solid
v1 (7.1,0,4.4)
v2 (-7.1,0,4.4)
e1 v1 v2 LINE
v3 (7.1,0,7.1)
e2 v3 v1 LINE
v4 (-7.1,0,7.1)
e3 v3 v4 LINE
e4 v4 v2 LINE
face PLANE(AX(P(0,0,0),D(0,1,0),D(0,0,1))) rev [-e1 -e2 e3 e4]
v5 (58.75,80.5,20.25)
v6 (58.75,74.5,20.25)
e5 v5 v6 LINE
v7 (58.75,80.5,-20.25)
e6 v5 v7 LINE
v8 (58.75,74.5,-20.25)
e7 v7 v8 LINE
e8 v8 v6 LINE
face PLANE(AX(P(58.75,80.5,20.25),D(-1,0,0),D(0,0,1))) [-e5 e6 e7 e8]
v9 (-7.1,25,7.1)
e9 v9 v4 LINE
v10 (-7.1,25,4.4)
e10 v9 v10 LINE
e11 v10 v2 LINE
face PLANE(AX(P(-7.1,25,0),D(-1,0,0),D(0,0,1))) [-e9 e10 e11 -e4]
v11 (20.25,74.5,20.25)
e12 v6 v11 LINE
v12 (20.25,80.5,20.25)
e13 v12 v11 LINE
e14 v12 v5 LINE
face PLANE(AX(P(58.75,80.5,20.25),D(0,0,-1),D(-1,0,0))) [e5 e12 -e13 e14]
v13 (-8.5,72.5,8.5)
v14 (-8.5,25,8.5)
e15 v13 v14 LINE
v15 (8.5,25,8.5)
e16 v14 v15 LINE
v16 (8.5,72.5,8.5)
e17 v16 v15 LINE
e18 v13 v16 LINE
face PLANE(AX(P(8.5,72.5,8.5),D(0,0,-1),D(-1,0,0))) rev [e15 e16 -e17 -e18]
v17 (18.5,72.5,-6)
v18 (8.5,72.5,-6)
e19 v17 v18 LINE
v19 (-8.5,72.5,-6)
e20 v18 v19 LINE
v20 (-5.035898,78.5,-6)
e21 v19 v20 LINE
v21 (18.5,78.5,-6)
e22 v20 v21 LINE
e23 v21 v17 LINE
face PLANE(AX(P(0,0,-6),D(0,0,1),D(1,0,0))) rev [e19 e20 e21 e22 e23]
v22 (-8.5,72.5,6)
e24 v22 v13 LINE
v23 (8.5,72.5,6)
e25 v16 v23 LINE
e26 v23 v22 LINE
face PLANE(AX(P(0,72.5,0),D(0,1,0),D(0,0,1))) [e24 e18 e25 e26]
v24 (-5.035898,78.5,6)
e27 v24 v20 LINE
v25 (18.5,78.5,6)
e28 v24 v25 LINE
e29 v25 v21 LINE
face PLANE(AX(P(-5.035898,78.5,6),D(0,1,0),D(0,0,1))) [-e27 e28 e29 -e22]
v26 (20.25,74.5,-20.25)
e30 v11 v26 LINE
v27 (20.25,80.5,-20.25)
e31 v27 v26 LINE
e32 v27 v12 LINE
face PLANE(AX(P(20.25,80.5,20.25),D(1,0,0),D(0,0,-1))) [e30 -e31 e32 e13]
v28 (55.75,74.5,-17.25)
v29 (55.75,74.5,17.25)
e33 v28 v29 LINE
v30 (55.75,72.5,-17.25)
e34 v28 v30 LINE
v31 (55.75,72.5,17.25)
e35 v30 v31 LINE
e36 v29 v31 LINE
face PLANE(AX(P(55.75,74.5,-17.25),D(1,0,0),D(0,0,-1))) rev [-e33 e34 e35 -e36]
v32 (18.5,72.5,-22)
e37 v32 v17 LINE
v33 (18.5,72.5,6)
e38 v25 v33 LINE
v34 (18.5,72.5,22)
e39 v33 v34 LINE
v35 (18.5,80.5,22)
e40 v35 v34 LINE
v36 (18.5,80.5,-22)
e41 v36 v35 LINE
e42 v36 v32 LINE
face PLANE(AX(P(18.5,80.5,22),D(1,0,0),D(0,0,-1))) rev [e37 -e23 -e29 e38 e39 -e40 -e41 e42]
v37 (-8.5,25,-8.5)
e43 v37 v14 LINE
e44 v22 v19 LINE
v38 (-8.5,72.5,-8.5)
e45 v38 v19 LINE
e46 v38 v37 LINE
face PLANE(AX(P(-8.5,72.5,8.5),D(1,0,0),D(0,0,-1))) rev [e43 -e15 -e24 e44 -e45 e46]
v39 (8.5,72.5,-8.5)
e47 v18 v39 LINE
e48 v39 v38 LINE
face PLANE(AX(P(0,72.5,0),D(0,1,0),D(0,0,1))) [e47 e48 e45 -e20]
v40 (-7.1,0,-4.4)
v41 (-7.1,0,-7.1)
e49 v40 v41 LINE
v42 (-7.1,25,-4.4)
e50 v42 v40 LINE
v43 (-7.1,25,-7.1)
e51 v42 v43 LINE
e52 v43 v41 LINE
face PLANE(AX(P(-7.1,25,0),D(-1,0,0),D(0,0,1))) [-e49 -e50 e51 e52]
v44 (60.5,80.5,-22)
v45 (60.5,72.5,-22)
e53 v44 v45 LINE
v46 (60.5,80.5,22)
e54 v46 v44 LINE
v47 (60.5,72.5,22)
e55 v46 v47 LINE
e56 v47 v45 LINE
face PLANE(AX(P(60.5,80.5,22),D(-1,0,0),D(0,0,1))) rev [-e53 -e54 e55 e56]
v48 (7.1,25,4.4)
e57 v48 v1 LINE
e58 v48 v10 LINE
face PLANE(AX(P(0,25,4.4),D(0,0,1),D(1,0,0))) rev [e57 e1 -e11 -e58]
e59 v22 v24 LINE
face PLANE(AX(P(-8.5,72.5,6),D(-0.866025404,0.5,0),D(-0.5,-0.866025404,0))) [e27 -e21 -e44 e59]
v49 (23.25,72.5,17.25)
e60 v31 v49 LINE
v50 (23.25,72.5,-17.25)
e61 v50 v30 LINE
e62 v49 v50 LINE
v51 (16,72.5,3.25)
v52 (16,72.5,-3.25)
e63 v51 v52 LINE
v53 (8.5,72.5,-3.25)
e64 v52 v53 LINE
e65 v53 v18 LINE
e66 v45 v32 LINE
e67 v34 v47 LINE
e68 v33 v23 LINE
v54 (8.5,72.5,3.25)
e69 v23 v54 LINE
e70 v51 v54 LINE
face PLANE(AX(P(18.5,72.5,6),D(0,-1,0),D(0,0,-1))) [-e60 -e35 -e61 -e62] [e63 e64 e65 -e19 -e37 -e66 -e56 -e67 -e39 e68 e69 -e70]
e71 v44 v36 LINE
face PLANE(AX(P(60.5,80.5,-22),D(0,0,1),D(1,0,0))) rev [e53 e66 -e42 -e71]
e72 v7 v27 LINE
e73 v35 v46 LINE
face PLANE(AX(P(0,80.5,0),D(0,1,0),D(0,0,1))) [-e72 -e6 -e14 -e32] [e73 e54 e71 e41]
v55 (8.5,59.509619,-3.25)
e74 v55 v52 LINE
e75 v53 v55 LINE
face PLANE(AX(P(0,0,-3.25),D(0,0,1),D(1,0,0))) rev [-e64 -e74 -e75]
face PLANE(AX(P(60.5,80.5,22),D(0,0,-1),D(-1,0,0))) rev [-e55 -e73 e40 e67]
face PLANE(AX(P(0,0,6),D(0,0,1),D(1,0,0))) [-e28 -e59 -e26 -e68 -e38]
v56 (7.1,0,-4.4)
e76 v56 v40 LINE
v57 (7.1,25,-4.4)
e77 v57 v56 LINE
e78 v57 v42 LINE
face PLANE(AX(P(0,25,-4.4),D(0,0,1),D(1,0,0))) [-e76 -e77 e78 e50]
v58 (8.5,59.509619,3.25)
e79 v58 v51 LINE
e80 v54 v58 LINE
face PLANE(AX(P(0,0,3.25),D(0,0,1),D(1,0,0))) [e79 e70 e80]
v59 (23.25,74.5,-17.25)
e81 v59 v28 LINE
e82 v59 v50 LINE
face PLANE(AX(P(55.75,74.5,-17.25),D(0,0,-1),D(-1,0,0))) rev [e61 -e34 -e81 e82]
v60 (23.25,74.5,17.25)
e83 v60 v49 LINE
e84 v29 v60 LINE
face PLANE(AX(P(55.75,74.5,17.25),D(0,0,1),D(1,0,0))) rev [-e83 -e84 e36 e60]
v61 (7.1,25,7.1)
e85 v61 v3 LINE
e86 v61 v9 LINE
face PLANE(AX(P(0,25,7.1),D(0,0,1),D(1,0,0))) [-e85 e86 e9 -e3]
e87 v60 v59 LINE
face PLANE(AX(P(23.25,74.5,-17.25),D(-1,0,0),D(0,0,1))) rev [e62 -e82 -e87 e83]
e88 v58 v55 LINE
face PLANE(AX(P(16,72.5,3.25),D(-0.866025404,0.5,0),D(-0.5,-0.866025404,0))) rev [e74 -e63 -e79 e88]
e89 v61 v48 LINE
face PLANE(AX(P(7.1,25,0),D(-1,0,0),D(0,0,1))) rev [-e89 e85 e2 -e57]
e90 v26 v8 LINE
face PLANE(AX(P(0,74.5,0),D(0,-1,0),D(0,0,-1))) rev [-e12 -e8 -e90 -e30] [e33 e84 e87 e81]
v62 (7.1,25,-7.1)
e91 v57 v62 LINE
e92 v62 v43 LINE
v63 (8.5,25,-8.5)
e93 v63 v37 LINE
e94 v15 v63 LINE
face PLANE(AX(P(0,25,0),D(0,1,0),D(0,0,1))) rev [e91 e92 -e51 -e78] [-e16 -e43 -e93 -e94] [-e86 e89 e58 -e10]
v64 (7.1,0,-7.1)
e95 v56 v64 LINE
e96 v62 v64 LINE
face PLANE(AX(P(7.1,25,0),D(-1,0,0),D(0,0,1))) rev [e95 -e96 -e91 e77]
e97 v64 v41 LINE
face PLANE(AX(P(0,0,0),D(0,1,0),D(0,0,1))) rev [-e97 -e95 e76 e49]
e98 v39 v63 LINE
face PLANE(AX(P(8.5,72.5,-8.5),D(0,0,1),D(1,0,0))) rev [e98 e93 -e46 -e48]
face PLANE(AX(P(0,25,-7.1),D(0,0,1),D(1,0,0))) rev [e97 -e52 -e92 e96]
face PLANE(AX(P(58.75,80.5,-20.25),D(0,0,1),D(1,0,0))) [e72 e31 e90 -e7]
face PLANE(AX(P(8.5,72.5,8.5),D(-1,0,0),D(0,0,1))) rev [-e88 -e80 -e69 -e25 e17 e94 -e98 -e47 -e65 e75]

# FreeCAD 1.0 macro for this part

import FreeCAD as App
import Part
import Sketcher
from FreeCAD import Vector
Q = App.Units.Quantity


def add_polygon(sketch, points):
    """Adds a closed chain of lines whose ends are joined by coincident constraints."""
    first, n = sketch.GeometryCount, len(points)
    for a, b in zip(points, points[1:] + points[:1]):
        sketch.addGeometry(Part.LineSegment(App.Vector(*a, 0), App.Vector(*b, 0)), False)
    for i in range(n):
        sketch.addConstraint(Sketcher.Constraint("Coincident", first + i, 2, first + (i + 1) % n, 1))

doc = App.newDocument("Part")
body = doc.addObject("PartDesign::Body", "Body")

sketch1 = doc.addObject("Sketcher::SketchObject", "Sketch")
body.addObject(sketch1)
sketch1.AttachmentSupport = (doc.XZ_Plane, [""])
sketch1.MapMode = "FlatFace"
add_polygon(sketch1, [(-7.1, 4.4), (-7.1, 7.1), (7.1, 7.1), (7.1, 4.4)])
sketch1.addConstraint(Sketcher.Constraint("Vertical", 0))
sketch1.addConstraint(Sketcher.Constraint("Horizontal", 1))
sketch1.addConstraint(Sketcher.Constraint("Vertical", 2))
sketch1.addConstraint(Sketcher.Constraint("Horizontal", 3))
sketch1.addConstraint(Sketcher.Constraint("DistanceX", 1, 1, 1, 2, Q("14.2 mm")))
sketch1.addConstraint(Sketcher.Constraint("DistanceY", 0, 1, 0, 2, Q("2.7 mm")))
sketch1.addConstraint(Sketcher.Constraint("DistanceX", 0, 2, -1, 1, Q("7.1 mm")))
sketch1.addConstraint(Sketcher.Constraint("DistanceY", -1, 1, 0, 2, Q("7.1 mm")))
pad1 = doc.addObject("PartDesign::Pad", "Pad")
body.addObject(pad1)
pad1.Profile = sketch1
pad1.Length = 25
pad1.Reversed = True
body2 = doc.addObject("PartDesign::Body", "Body001")

sketch2 = doc.addObject("Sketcher::SketchObject", "Sketch001")
body2.addObject(sketch2)
sketch2.AttachmentSupport = (doc.getObject("XZ_Plane001"), [""])
sketch2.MapMode = "FlatFace"
add_polygon(sketch2, [(-7.1, -7.1), (-7.1, -4.4), (7.1, -4.4), (7.1, -7.1)])
sketch2.addConstraint(Sketcher.Constraint("Vertical", 0))
sketch2.addConstraint(Sketcher.Constraint("Horizontal", 1))
sketch2.addConstraint(Sketcher.Constraint("Vertical", 2))
sketch2.addConstraint(Sketcher.Constraint("Horizontal", 3))
sketch2.addConstraint(Sketcher.Constraint("DistanceX", 1, 1, 1, 2, Q("14.2 mm")))
sketch2.addConstraint(Sketcher.Constraint("DistanceY", 0, 1, 0, 2, Q("2.7 mm")))
sketch2.addConstraint(Sketcher.Constraint("DistanceX", 0, 2, -1, 1, Q("7.1 mm")))
sketch2.addConstraint(Sketcher.Constraint("DistanceY", 0, 2, -1, 1, Q("4.4 mm")))
pad2 = doc.addObject("PartDesign::Pad", "Pad001")
body2.addObject(pad2)
pad2.Profile = sketch2
pad2.Length = 25
pad2.Reversed = True
body.AllowCompound = True
doc.recompute()

boolean = doc.addObject("PartDesign::Boolean", "Boolean")
body.addObject(boolean)
boolean.Type = "Fuse"
boolean.addObjects([body2])

sketch3 = doc.addObject("Sketcher::SketchObject", "Sketch002")
body.addObject(sketch3)
sketch3.AttachmentSupport = (doc.XZ_Plane, [""])
sketch3.MapMode = "FlatFace"
sketch3.AttachmentOffset = App.Placement(Vector(0, 0, -25), App.Rotation())
add_polygon(sketch3, [(-8, -8), (-8, 8), (8, 8), (8, -8)])
sketch3.addConstraint(Sketcher.Constraint("Vertical", 0))
sketch3.addConstraint(Sketcher.Constraint("Horizontal", 1))
sketch3.addConstraint(Sketcher.Constraint("Vertical", 2))
sketch3.addConstraint(Sketcher.Constraint("Horizontal", 3))
sketch3.addConstraint(Sketcher.Constraint("Symmetric", 0, 2, 2, 2, -1, 1))
sketch3.addConstraint(Sketcher.Constraint("Equal", 3, 0))
sketch3.addConstraint(Sketcher.Constraint("DistanceX", 1, 1, 1, 2, Q("17 mm")))
pad3 = doc.addObject("PartDesign::Pad", "Pad002")
body.addObject(pad3)
pad3.Profile = sketch3
pad3.Length = 47.5
pad3.Reversed = True

sketch4 = doc.addObject("Sketcher::SketchObject", "Sketch003")
body.addObject(sketch4)
sketch4.AttachmentSupport = (doc.XY_Plane, [""])
sketch4.MapMode = "FlatFace"
add_polygon(sketch4, [(-5, 78), (-8, 72), (18, 72), (18, 78)])
sketch4.addConstraint(Sketcher.Constraint("Horizontal", 1))
sketch4.addConstraint(Sketcher.Constraint("Vertical", 2))
sketch4.addConstraint(Sketcher.Constraint("Horizontal", 3))
sketch4.addConstraint(Sketcher.Constraint("DistanceX", 1, 1, 1, 2, Q("27 mm")))
sketch4.addConstraint(Sketcher.Constraint("DistanceY", 2, 1, 2, 2, Q("6 mm")))
sketch4.addConstraint(Sketcher.Constraint("Angle", 0, Q("-120 deg")))
sketch4.addConstraint(Sketcher.Constraint("DistanceX", 0, 2, -1, 1, Q("8.5 mm")))
sketch4.addConstraint(Sketcher.Constraint("DistanceY", -1, 1, 0, 2, Q("72.5 mm")))
pad4 = doc.addObject("PartDesign::Pad", "Pad003")
body.addObject(pad4)
pad4.Profile = sketch4
pad4.Length = 12
pad4.Midplane = True

sketch5 = doc.addObject("Sketcher::SketchObject", "Sketch004")
body.addObject(sketch5)
sketch5.AttachmentSupport = (doc.XZ_Plane, [""])
sketch5.MapMode = "FlatFace"
sketch5.AttachmentOffset = App.Placement(Vector(0, 0, -78.5), App.Rotation())
add_polygon(sketch5, [(18, -22), (18, 22), (60, 22), (60, -22)])
add_polygon(sketch5, [(59, 20), (20, 20), (20, -20), (59, -20)])
sketch5.addConstraint(Sketcher.Constraint("Vertical", 0))
sketch5.addConstraint(Sketcher.Constraint("Horizontal", 1))
sketch5.addConstraint(Sketcher.Constraint("Vertical", 2))
sketch5.addConstraint(Sketcher.Constraint("Horizontal", 3))
sketch5.addConstraint(Sketcher.Constraint("Horizontal", 4))
sketch5.addConstraint(Sketcher.Constraint("Vertical", 5))
sketch5.addConstraint(Sketcher.Constraint("Horizontal", 6))
sketch5.addConstraint(Sketcher.Constraint("Vertical", 7))
sketch5.addConstraint(Sketcher.Constraint("DistanceX", 1, 1, 1, 2, Q("42 mm")))
sketch5.addConstraint(Sketcher.Constraint("DistanceY", 0, 1, 0, 2, Q("44 mm")))
sketch5.addConstraint(Sketcher.Constraint("DistanceX", 4, 2, 4, 1, Q("38.5 mm")))
sketch5.addConstraint(Sketcher.Constraint("DistanceY", 5, 2, 5, 1, Q("40.5 mm")))
sketch5.addConstraint(Sketcher.Constraint("DistanceY", -1, 1, 0, 2, Q("22 mm")))
sketch5.addConstraint(Sketcher.Constraint("DistanceX", -1, 1, 0, 2, Q("18.5 mm")))
sketch5.addConstraint(Sketcher.Constraint("DistanceX", -1, 1, 4, 2, Q("20.25 mm")))
sketch5.addConstraint(Sketcher.Constraint("DistanceY", -1, 1, 4, 2, Q("20.25 mm")))
pad5 = doc.addObject("PartDesign::Pad", "Pad004")
body.addObject(pad5)
pad5.Profile = sketch5
pad5.Type = "TwoLengths"
pad5.Length = 2
pad5.Length2 = 6
pad5.Reversed = True

sketch6 = doc.addObject("Sketcher::SketchObject", "Sketch005")
body.addObject(sketch6)
sketch6.AttachmentSupport = (doc.XZ_Plane, [""])
sketch6.MapMode = "FlatFace"
sketch6.AttachmentOffset = App.Placement(Vector(0, 0, -72.5), App.Rotation())
add_polygon(sketch6, [(20, 20), (20, -20), (59, -20), (59, 20)])
add_polygon(sketch6, [(56, -17), (23, -17), (23, 17), (56, 17)])
sketch6.addConstraint(Sketcher.Constraint("Vertical", 0))
sketch6.addConstraint(Sketcher.Constraint("Horizontal", 1))
sketch6.addConstraint(Sketcher.Constraint("Vertical", 2))
sketch6.addConstraint(Sketcher.Constraint("Horizontal", 3))
sketch6.addConstraint(Sketcher.Constraint("Horizontal", 4))
sketch6.addConstraint(Sketcher.Constraint("Vertical", 5))
sketch6.addConstraint(Sketcher.Constraint("Horizontal", 6))
sketch6.addConstraint(Sketcher.Constraint("Vertical", 7))
sketch6.addConstraint(Sketcher.Constraint("DistanceX", 1, 1, 1, 2, Q("38.5 mm")))
sketch6.addConstraint(Sketcher.Constraint("DistanceX", 4, 2, 4, 1, Q("32.5 mm")))
sketch6.addConstraint(Sketcher.Constraint("DistanceY", 0, 2, 0, 1, Q("40.5 mm")))
sketch6.addConstraint(Sketcher.Constraint("DistanceY", 5, 1, 5, 2, Q("34.5 mm")))
sketch6.addConstraint(Sketcher.Constraint("DistanceX", 0, 2, 4, 2, Q("3 mm")))
sketch6.addConstraint(Sketcher.Constraint("DistanceY", 0, 2, 4, 2, Q("3 mm")))
sketch6.addConstraint(Sketcher.Constraint("DistanceX", -1, 1, 0, 2, Q("20.25 mm")))
sketch6.addConstraint(Sketcher.Constraint("DistanceY", 0, 2, -1, 1, Q("20.25 mm")))
pad6 = doc.addObject("PartDesign::Pad", "Pad005")
body.addObject(pad6)
pad6.Profile = sketch6
pad6.Length = 2
pad6.Reversed = True

sketch7 = doc.addObject("Sketcher::SketchObject", "Sketch006")
body.addObject(sketch7)
sketch7.AttachmentSupport = (doc.XY_Plane, [""])
sketch7.MapMode = "FlatFace"
add_polygon(sketch7, [(8, 60), (16, 72), (8, 72)])
sketch7.addConstraint(Sketcher.Constraint("Horizontal", 1))
sketch7.addConstraint(Sketcher.Constraint("Vertical", 2))
sketch7.addConstraint(Sketcher.Constraint("Angle", 0, Q("60 deg")))
sketch7.addConstraint(Sketcher.Constraint("Distance", 0, Q("15 mm")))
sketch7.addConstraint(Sketcher.Constraint("DistanceX", -1, 1, 0, 2, Q("16 mm")))
sketch7.addConstraint(Sketcher.Constraint("DistanceY", -1, 1, 0, 2, Q("72.5 mm")))
pad7 = doc.addObject("PartDesign::Pad", "Pad006")
body.addObject(pad7)
pad7.Profile = sketch7
pad7.Length = 6.5
pad7.Midplane = True

doc.recompute()
